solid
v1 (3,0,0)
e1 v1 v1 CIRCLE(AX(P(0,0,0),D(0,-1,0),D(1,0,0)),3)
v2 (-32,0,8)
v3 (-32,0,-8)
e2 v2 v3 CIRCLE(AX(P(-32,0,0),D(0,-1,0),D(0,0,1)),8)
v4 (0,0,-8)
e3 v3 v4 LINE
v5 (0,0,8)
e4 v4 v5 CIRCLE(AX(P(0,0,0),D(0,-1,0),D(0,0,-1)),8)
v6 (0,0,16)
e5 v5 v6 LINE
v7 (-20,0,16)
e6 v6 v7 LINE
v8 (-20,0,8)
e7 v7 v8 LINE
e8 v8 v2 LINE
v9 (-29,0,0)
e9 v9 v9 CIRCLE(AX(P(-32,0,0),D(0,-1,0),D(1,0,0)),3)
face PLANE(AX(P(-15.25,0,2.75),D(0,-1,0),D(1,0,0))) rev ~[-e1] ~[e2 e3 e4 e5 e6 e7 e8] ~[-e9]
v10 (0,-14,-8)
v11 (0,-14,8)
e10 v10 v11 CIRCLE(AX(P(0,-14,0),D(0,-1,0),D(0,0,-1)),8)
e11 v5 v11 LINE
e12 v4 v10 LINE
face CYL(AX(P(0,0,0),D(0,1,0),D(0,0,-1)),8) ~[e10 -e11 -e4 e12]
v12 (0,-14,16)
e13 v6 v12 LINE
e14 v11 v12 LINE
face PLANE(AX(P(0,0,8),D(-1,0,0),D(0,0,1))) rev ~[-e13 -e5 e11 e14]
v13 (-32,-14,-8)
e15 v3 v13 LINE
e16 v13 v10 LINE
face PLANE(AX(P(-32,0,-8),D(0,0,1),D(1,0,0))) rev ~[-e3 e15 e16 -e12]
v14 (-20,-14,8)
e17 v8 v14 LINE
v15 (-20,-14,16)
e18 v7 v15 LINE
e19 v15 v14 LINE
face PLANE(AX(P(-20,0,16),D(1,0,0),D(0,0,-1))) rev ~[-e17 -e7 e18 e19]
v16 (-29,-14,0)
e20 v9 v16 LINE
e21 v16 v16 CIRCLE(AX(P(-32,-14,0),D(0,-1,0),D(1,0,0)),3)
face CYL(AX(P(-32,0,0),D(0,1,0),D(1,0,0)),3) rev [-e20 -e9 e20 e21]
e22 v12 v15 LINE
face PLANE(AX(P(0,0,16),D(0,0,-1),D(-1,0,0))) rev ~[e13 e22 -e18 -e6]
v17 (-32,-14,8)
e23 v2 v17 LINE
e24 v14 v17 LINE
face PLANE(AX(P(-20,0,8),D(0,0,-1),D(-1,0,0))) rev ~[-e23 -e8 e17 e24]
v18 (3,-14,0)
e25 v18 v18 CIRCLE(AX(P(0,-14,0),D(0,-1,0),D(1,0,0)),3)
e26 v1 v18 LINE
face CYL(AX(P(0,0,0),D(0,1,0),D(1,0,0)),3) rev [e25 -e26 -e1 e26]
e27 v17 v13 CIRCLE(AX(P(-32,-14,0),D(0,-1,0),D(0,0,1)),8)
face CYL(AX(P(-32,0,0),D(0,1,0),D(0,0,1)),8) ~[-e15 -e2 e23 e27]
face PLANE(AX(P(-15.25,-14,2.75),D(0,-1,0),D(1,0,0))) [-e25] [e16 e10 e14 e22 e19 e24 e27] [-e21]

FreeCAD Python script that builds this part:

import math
import FreeCAD as App
import Part
import Sketcher
from FreeCAD import Vector

doc = App.newDocument("Part")
body = doc.addObject("PartDesign::Body", "Body")

# Sketch on XZ plane
sketch1 = body.newObject("Sketcher::SketchObject", "Sketch")
sketch1.AttachmentSupport = (doc.getObject("XZ_Plane"), [""])
sketch1.MapMode = "FlatFace"
sketch1.addGeometry([
    Part.LineSegment(Vector(-20, 8, 0), Vector(-32, 8, 0)),  # 0
    Part.ArcOfCircle(Part.Circle(Vector(-32, 0, 0), Vector(0, 0, 1), 8), math.radians(90), math.radians(270)),  # 1
    Part.LineSegment(Vector(-32, -8, 0), Vector(0, -8, 0)),  # 2
    Part.ArcOfCircle(Part.Circle(Vector(0, 0, 0), Vector(0, 0, 1), 8), math.radians(-90), math.radians(90)),  # 3
    Part.LineSegment(Vector(0, 8, 0), Vector(0, 16, 0)),  # 4
    Part.LineSegment(Vector(0, 16, 0), Vector(-20, 16, 0)),  # 5
    Part.LineSegment(Vector(-20, 16, 0), Vector(-20, 8, 0)),  # 6
    Part.Circle(Vector(-32, 0, 0), Vector(0, 0, 1), 3),  # 7
    Part.Circle(Vector(0, 0, 0), Vector(0, 0, 1), 3),  # 8
], False)
sketch1.addConstraint([
    Sketcher.Constraint("Tangent", 0, 2, 1, 1),
    Sketcher.Constraint("Tangent", 1, 2, 2, 1),
    Sketcher.Constraint("Tangent", 2, 2, 3, 1),
    Sketcher.Constraint("Coincident", 3, 2, 4, 1),
    Sketcher.Constraint("Coincident", 4, 2, 5, 1),
    Sketcher.Constraint("Coincident", 5, 2, 6, 1),
    Sketcher.Constraint("Coincident", 6, 2, 0, 1),
    Sketcher.Constraint("Horizontal", 0),
    Sketcher.Constraint("Horizontal", 2),
    Sketcher.Constraint("Vertical", 4),
    Sketcher.Constraint("Horizontal", 5),
    Sketcher.Constraint("Vertical", 6),
    Sketcher.Constraint("Coincident", 3, 3, -1, 1),
    Sketcher.Constraint("Coincident", 8, 3, -1, 1),
    Sketcher.Constraint("Coincident", 7, 3, 1, 3),
    Sketcher.Constraint("Equal", 1, 3),
    Sketcher.Constraint("Equal", 7, 8),
    Sketcher.Constraint("PointOnObject", 3, 2, -2),
    Sketcher.Constraint("Diameter", 7, 6.0),
    Sketcher.Constraint("Radius", 1, 8.0),
    Sketcher.Constraint("DistanceX", 0, 2, 0, 1, 12.0),
    Sketcher.Constraint("DistanceX", 2, 1, 2, 2, 32.0),
    Sketcher.Constraint("DistanceY", 4, 1, 4, 2, 8.0),
])
pad1 = body.newObject("PartDesign::Pad", "Pad")
pad1.Profile = sketch1
pad1.Length = 14

doc.recompute()
